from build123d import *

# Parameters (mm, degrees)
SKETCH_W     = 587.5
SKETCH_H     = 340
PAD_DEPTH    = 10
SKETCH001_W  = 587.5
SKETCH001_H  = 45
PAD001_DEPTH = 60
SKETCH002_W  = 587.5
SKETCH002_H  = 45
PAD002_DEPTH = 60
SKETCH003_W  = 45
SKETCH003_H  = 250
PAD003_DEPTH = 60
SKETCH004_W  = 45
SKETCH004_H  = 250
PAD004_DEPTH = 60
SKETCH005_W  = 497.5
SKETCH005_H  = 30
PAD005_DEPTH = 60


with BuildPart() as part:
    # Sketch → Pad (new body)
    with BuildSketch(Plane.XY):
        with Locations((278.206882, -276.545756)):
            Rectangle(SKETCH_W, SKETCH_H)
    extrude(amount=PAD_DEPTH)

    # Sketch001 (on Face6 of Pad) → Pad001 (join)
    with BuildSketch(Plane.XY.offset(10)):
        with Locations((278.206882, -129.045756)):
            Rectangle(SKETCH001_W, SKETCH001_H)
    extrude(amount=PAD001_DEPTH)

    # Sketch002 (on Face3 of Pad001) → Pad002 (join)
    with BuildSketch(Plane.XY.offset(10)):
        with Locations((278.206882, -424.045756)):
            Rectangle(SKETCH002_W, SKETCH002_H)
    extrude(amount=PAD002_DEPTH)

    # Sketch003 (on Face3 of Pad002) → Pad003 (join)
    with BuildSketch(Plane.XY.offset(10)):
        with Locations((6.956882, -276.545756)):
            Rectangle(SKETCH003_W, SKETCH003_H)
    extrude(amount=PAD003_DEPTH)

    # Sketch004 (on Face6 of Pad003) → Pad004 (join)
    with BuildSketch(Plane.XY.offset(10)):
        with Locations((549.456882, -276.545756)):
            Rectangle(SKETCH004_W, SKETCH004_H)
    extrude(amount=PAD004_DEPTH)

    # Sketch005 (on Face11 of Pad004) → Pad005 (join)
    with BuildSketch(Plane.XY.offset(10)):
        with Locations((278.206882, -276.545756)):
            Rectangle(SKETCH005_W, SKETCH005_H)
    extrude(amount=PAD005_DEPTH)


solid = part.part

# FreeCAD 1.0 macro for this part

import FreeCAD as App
import Part
import Sketcher
from FreeCAD import Vector

doc = App.newDocument("Part")
body = doc.addObject("PartDesign::Body", "Body")

# Sketch on XY plane
sketch1 = doc.addObject("Sketcher::SketchObject", "Sketch")
body.addObject(sketch1)
sketch1.AttachmentSupport = (doc.XY_Plane, [""])
sketch1.MapMode = "FlatFace"
sketch1.addGeometry(Part.LineSegment(Vector(-16, -107, 0), Vector(-16, -447, 0)), False)
sketch1.addGeometry(Part.LineSegment(Vector(-16, -447, 0), Vector(572, -447, 0)), False)
sketch1.addGeometry(Part.LineSegment(Vector(572, -447, 0), Vector(572, -107, 0)), False)
sketch1.addGeometry(Part.LineSegment(Vector(572, -107, 0), Vector(-16, -107, 0)), False)
sketch1.addConstraint(Sketcher.Constraint("Coincident", 0, 2, 1, 1))
sketch1.addConstraint(Sketcher.Constraint("Coincident", 1, 2, 2, 1))
sketch1.addConstraint(Sketcher.Constraint("Coincident", 2, 2, 3, 1))
sketch1.addConstraint(Sketcher.Constraint("Coincident", 3, 2, 0, 1))
sketch1.addConstraint(Sketcher.Constraint("Vertical", 0))
sketch1.addConstraint(Sketcher.Constraint("Horizontal", 1))
sketch1.addConstraint(Sketcher.Constraint("Vertical", 2))
sketch1.addConstraint(Sketcher.Constraint("Horizontal", 3))
sketch1.addConstraint(Sketcher.Constraint("DistanceY", 0, 2, 0, 1, 340.0))
sketch1.addConstraint(Sketcher.Constraint("DistanceX", 1, 1, 1, 2, 587.5))
sketch1.addConstraint(Sketcher.Constraint("DistanceX", -1, 1, 1, 2, 571.956882))
sketch1.addConstraint(Sketcher.Constraint("DistanceY", 0, 2, -1, 1, 446.545756))
pad1 = doc.addObject("PartDesign::Pad", "Pad")
body.addObject(pad1)
pad1.Profile = sketch1
pad1.Length = 10

# Sketch on XY plane
sketch2 = doc.addObject("Sketcher::SketchObject", "Sketch001")
body.addObject(sketch2)
sketch2.AttachmentSupport = (doc.XY_Plane, [""])
sketch2.MapMode = "FlatFace"
sketch2.AttachmentOffset = App.Placement(Vector(0, 0, 10), App.Rotation())
sketch2.addGeometry(Part.LineSegment(Vector(-16, -107, 0), Vector(-16, -152, 0)), False)
sketch2.addGeometry(Part.LineSegment(Vector(-16, -152, 0), Vector(572, -152, 0)), False)
sketch2.addGeometry(Part.LineSegment(Vector(572, -152, 0), Vector(572, -107, 0)), False)
sketch2.addGeometry(Part.LineSegment(Vector(572, -107, 0), Vector(-16, -107, 0)), False)
sketch2.addConstraint(Sketcher.Constraint("Coincident", 0, 2, 1, 1))
sketch2.addConstraint(Sketcher.Constraint("Coincident", 1, 2, 2, 1))
sketch2.addConstraint(Sketcher.Constraint("Coincident", 2, 2, 3, 1))
sketch2.addConstraint(Sketcher.Constraint("Coincident", 3, 2, 0, 1))
sketch2.addConstraint(Sketcher.Constraint("Vertical", 0))
sketch2.addConstraint(Sketcher.Constraint("Horizontal", 1))
sketch2.addConstraint(Sketcher.Constraint("Vertical", 2))
sketch2.addConstraint(Sketcher.Constraint("Horizontal", 3))
sketch2.addConstraint(Sketcher.Constraint("DistanceY", 0, 2, 0, 1, 45.0))
sketch2.addConstraint(Sketcher.Constraint("DistanceX", 1, 1, 1, 2, 587.5))
sketch2.addConstraint(Sketcher.Constraint("DistanceX", -1, 1, 1, 2, 571.956882))
sketch2.addConstraint(Sketcher.Constraint("DistanceY", 0, 2, -1, 1, 151.545756))
pad2 = doc.addObject("PartDesign::Pad", "Pad001")
body.addObject(pad2)
pad2.Profile = sketch2
pad2.Length = 60

# Sketch on XY plane
sketch3 = doc.addObject("Sketcher::SketchObject", "Sketch002")
body.addObject(sketch3)
sketch3.AttachmentSupport = (doc.XY_Plane, [""])
sketch3.MapMode = "FlatFace"
sketch3.AttachmentOffset = App.Placement(Vector(0, 0, 10), App.Rotation())
sketch3.addGeometry(Part.LineSegment(Vector(-16, -402, 0), Vector(-16, -447, 0)), False)
sketch3.addGeometry(Part.LineSegment(Vector(-16, -447, 0), Vector(572, -447, 0)), False)
sketch3.addGeometry(Part.LineSegment(Vector(572, -447, 0), Vector(572, -402, 0)), False)
sketch3.addGeometry(Part.LineSegment(Vector(572, -402, 0), Vector(-16, -402, 0)), False)
sketch3.addConstraint(Sketcher.Constraint("Coincident", 0, 2, 1, 1))
sketch3.addConstraint(Sketcher.Constraint("Coincident", 1, 2, 2, 1))
sketch3.addConstraint(Sketcher.Constraint("Coincident", 2, 2, 3, 1))
sketch3.addConstraint(Sketcher.Constraint("Coincident", 3, 2, 0, 1))
sketch3.addConstraint(Sketcher.Constraint("Vertical", 0))
sketch3.addConstraint(Sketcher.Constraint("Horizontal", 1))
sketch3.addConstraint(Sketcher.Constraint("Vertical", 2))
sketch3.addConstraint(Sketcher.Constraint("Horizontal", 3))
sketch3.addConstraint(Sketcher.Constraint("DistanceY", 0, 2, 0, 1, 45.0))
sketch3.addConstraint(Sketcher.Constraint("DistanceX", 1, 1, 1, 2, 587.5))
sketch3.addConstraint(Sketcher.Constraint("DistanceX", -1, 1, 1, 2, 571.956882))
sketch3.addConstraint(Sketcher.Constraint("DistanceY", 0, 2, -1, 1, 446.545756))
pad3 = doc.addObject("PartDesign::Pad", "Pad002")
body.addObject(pad3)
pad3.Profile = sketch3
pad3.Length = 60

# Sketch on XY plane
sketch4 = doc.addObject("Sketcher::SketchObject", "Sketch003")
body.addObject(sketch4)
sketch4.AttachmentSupport = (doc.XY_Plane, [""])
sketch4.MapMode = "FlatFace"
sketch4.AttachmentOffset = App.Placement(Vector(0, 0, 10), App.Rotation())
sketch4.addGeometry(Part.LineSegment(Vector(-16, -152, 0), Vector(-16, -402, 0)), False)
sketch4.addGeometry(Part.LineSegment(Vector(-16, -402, 0), Vector(29, -402, 0)), False)
sketch4.addGeometry(Part.LineSegment(Vector(29, -402, 0), Vector(29, -152, 0)), False)
sketch4.addGeometry(Part.LineSegment(Vector(29, -152, 0), Vector(-16, -152, 0)), False)
sketch4.addConstraint(Sketcher.Constraint("Coincident", 0, 2, 1, 1))
sketch4.addConstraint(Sketcher.Constraint("Coincident", 1, 2, 2, 1))
sketch4.addConstraint(Sketcher.Constraint("Coincident", 2, 2, 3, 1))
sketch4.addConstraint(Sketcher.Constraint("Coincident", 3, 2, 0, 1))
sketch4.addConstraint(Sketcher.Constraint("Vertical", 0))
sketch4.addConstraint(Sketcher.Constraint("Horizontal", 1))
sketch4.addConstraint(Sketcher.Constraint("Vertical", 2))
sketch4.addConstraint(Sketcher.Constraint("Horizontal", 3))
sketch4.addConstraint(Sketcher.Constraint("DistanceX", 1, 1, 1, 2, 45.0))
sketch4.addConstraint(Sketcher.Constraint("DistanceY", 0, 2, 0, 1, 250.0))
sketch4.addConstraint(Sketcher.Constraint("DistanceX", -1, 1, 1, 2, 29.456882))
sketch4.addConstraint(Sketcher.Constraint("DistanceY", 0, 2, -1, 1, 401.545756))
pad4 = doc.addObject("PartDesign::Pad", "Pad003")
body.addObject(pad4)
pad4.Profile = sketch4
pad4.Length = 60

# Sketch on XY plane
sketch5 = doc.addObject("Sketcher::SketchObject", "Sketch004")
body.addObject(sketch5)
sketch5.AttachmentSupport = (doc.XY_Plane, [""])
sketch5.MapMode = "FlatFace"
sketch5.AttachmentOffset = App.Placement(Vector(0, 0, 10), App.Rotation())
sketch5.addGeometry(Part.LineSegment(Vector(527, -152, 0), Vector(527, -402, 0)), False)
sketch5.addGeometry(Part.LineSegment(Vector(527, -402, 0), Vector(572, -402, 0)), False)
sketch5.addGeometry(Part.LineSegment(Vector(572, -402, 0), Vector(572, -152, 0)), False)
sketch5.addGeometry(Part.LineSegment(Vector(572, -152, 0), Vector(527, -152, 0)), False)
sketch5.addConstraint(Sketcher.Constraint("Coincident", 0, 2, 1, 1))
sketch5.addConstraint(Sketcher.Constraint("Coincident", 1, 2, 2, 1))
sketch5.addConstraint(Sketcher.Constraint("Coincident", 2, 2, 3, 1))
sketch5.addConstraint(Sketcher.Constraint("Coincident", 3, 2, 0, 1))
sketch5.addConstraint(Sketcher.Constraint("Vertical", 0))
sketch5.addConstraint(Sketcher.Constraint("Horizontal", 1))
sketch5.addConstraint(Sketcher.Constraint("Vertical", 2))
sketch5.addConstraint(Sketcher.Constraint("Horizontal", 3))
sketch5.addConstraint(Sketcher.Constraint("DistanceX", 1, 1, 1, 2, 45.0))
sketch5.addConstraint(Sketcher.Constraint("DistanceY", 0, 2, 0, 1, 250.0))
sketch5.addConstraint(Sketcher.Constraint("DistanceX", -1, 1, 0, 2, 526.956882))
sketch5.addConstraint(Sketcher.Constraint("DistanceY", 0, 2, -1, 1, 401.545756))
pad5 = doc.addObject("PartDesign::Pad", "Pad004")
body.addObject(pad5)
pad5.Profile = sketch5
pad5.Length = 60

# Sketch on XY plane
sketch6 = doc.addObject("Sketcher::SketchObject", "Sketch005")
body.addObject(sketch6)
sketch6.AttachmentSupport = (doc.XY_Plane, [""])
sketch6.MapMode = "FlatFace"
sketch6.AttachmentOffset = App.Placement(Vector(0, 0, 10), App.Rotation())
sketch6.addGeometry(Part.LineSegment(Vector(29, -262, 0), Vector(29, -292, 0)), False)
sketch6.addGeometry(Part.LineSegment(Vector(29, -292, 0), Vector(527, -292, 0)), False)
sketch6.addGeometry(Part.LineSegment(Vector(527, -292, 0), Vector(527, -262, 0)), False)
sketch6.addGeometry(Part.LineSegment(Vector(527, -262, 0), Vector(29, -262, 0)), False)
sketch6.addConstraint(Sketcher.Constraint("Coincident", 0, 2, 1, 1))
sketch6.addConstraint(Sketcher.Constraint("Coincident", 1, 2, 2, 1))
sketch6.addConstraint(Sketcher.Constraint("Coincident", 2, 2, 3, 1))
sketch6.addConstraint(Sketcher.Constraint("Coincident", 3, 2, 0, 1))
sketch6.addConstraint(Sketcher.Constraint("Vertical", 0))
sketch6.addConstraint(Sketcher.Constraint("Horizontal", 1))
sketch6.addConstraint(Sketcher.Constraint("Vertical", 2))
sketch6.addConstraint(Sketcher.Constraint("Horizontal", 3))
sketch6.addConstraint(Sketcher.Constraint("DistanceY", 0, 2, 0, 1, 30.0))
sketch6.addConstraint(Sketcher.Constraint("DistanceX", 1, 1, 1, 2, 497.5))
sketch6.addConstraint(Sketcher.Constraint("DistanceX", -1, 1, 0, 2, 29.456882))
sketch6.addConstraint(Sketcher.Constraint("DistanceY", 0, 2, -1, 1, 291.545756))
pad6 = doc.addObject("PartDesign::Pad", "Pad005")
body.addObject(pad6)
pad6.Profile = sketch6
pad6.Length = 60

doc.recompute()
